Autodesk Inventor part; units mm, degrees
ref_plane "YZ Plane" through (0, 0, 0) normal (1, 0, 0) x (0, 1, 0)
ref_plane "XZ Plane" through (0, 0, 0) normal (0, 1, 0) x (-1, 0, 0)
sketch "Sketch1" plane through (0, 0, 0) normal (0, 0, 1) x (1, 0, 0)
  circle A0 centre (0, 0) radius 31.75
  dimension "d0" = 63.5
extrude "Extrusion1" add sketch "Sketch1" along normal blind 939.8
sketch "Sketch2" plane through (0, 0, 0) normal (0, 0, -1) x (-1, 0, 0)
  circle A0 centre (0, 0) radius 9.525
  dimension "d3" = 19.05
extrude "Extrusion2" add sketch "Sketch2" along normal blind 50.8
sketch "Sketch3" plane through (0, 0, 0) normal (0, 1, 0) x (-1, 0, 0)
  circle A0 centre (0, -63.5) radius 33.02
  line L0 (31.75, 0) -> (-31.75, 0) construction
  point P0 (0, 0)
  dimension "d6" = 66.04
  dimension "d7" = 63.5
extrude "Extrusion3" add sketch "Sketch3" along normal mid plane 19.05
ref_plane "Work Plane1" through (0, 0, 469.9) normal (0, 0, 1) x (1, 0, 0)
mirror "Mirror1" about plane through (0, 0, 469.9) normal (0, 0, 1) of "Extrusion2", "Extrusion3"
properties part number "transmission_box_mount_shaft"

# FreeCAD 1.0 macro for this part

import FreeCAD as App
import Part
import Sketcher
Q = App.Units.Quantity

doc = App.newDocument("Part")
params = doc.addObject("Spreadsheet::Sheet", "Params")
for row, (alias, value) in enumerate([
    ("sketch1_diameter", "2.5 in"),
    ("pad1_length", "37 in"),
    ("sketch2_diameter", "0.75 in"),
    ("pad2_length", "2 in"),
    ("sketch3_diameter", "2.6 in"),
    ("pad3_length", "0.75 in"),
], start=1):
    params.set(f"A{row}", alias)
    params.set(f"B{row}", "=" + value)
    params.setAlias(f"B{row}", alias)

body = doc.addObject("PartDesign::Body", "Body")

# Sketch on XY plane
sketch1 = body.newObject("Sketcher::SketchObject", "Sketch")
sketch1.AttachmentSupport = (doc.getObject("XY_Plane"), [""])
sketch1.MapMode = "FlatFace"
sketch1.addGeometry(Part.Circle(App.Vector(0, 0, 0), App.Vector(0, 0, 1), 31.75), False)
sketch1.addConstraint(Sketcher.Constraint("Coincident", 0, 3, -1, 1))
sketch1.addConstraint(Sketcher.Constraint("Diameter", 0, Q("2.5 in")))
sketch1.setExpression("Constraints[1]", "Params.sketch1_diameter")
pad1 = body.newObject("PartDesign::Pad", "Pad")
pad1.Profile = sketch1
pad1.setExpression("Length", "Params.pad1_length")

# Sketch on XY plane
sketch2 = body.newObject("Sketcher::SketchObject", "Sketch001")
sketch2.AttachmentSupport = (doc.getObject("XY_Plane"), [""])
sketch2.MapMode = "FlatFace"
sketch2.addGeometry(Part.Circle(App.Vector(0, 0, 0), App.Vector(0, 0, 1), 9.525), False)
sketch2.addConstraint(Sketcher.Constraint("Coincident", 0, 3, -1, 1))
sketch2.addConstraint(Sketcher.Constraint("Diameter", 0, Q("0.75 in")))
sketch2.setExpression("Constraints[1]", "Params.sketch2_diameter")
pad2 = body.newObject("PartDesign::Pad", "Pad001")
pad2.Profile = sketch2
pad2.setExpression("Length", "Params.pad2_length")
pad2.Reversed = True

# Sketch on XZ plane
sketch3 = body.newObject("Sketcher::SketchObject", "Sketch002")
sketch3.AttachmentSupport = (doc.getObject("XZ_Plane"), [""])
sketch3.MapMode = "FlatFace"
sketch3.addGeometry(Part.Circle(App.Vector(0, -63.5, 0), App.Vector(0, 0, 1), 33.02), False)
sketch3.addConstraint(Sketcher.Constraint("PointOnObject", 0, 3, -2))
sketch3.addConstraint(Sketcher.Constraint("Diameter", 0, Q("2.6 in")))
sketch3.addConstraint(Sketcher.Constraint("DistanceY", 0, 3, -1, 1, Q("2.5 in")))
sketch3.setExpression("Constraints[1]", "Params.sketch3_diameter")
pad3 = body.newObject("PartDesign::Pad", "Pad002")
pad3.Profile = sketch3
pad3.setExpression("Length", "Params.pad3_length")
pad3.Midplane = True
doc.recompute()

datumplane = body.newObject("PartDesign::Plane", "DatumPlane")
datumplane.AttachmentSupport = (doc.getObject("XY_Plane"), [""])
datumplane.MapMode = "FlatFace"
datumplane.AttachmentOffset = App.Placement(App.Vector(0, 0, 18.5 * 25.4), App.Rotation())
mirrored = body.newObject("PartDesign::Mirrored", "Mirrored")
mirrored.Originals = [pad2, pad3]
mirrored.MirrorPlane = (datumplane, [""])
body.Tip = mirrored

doc.recompute()
